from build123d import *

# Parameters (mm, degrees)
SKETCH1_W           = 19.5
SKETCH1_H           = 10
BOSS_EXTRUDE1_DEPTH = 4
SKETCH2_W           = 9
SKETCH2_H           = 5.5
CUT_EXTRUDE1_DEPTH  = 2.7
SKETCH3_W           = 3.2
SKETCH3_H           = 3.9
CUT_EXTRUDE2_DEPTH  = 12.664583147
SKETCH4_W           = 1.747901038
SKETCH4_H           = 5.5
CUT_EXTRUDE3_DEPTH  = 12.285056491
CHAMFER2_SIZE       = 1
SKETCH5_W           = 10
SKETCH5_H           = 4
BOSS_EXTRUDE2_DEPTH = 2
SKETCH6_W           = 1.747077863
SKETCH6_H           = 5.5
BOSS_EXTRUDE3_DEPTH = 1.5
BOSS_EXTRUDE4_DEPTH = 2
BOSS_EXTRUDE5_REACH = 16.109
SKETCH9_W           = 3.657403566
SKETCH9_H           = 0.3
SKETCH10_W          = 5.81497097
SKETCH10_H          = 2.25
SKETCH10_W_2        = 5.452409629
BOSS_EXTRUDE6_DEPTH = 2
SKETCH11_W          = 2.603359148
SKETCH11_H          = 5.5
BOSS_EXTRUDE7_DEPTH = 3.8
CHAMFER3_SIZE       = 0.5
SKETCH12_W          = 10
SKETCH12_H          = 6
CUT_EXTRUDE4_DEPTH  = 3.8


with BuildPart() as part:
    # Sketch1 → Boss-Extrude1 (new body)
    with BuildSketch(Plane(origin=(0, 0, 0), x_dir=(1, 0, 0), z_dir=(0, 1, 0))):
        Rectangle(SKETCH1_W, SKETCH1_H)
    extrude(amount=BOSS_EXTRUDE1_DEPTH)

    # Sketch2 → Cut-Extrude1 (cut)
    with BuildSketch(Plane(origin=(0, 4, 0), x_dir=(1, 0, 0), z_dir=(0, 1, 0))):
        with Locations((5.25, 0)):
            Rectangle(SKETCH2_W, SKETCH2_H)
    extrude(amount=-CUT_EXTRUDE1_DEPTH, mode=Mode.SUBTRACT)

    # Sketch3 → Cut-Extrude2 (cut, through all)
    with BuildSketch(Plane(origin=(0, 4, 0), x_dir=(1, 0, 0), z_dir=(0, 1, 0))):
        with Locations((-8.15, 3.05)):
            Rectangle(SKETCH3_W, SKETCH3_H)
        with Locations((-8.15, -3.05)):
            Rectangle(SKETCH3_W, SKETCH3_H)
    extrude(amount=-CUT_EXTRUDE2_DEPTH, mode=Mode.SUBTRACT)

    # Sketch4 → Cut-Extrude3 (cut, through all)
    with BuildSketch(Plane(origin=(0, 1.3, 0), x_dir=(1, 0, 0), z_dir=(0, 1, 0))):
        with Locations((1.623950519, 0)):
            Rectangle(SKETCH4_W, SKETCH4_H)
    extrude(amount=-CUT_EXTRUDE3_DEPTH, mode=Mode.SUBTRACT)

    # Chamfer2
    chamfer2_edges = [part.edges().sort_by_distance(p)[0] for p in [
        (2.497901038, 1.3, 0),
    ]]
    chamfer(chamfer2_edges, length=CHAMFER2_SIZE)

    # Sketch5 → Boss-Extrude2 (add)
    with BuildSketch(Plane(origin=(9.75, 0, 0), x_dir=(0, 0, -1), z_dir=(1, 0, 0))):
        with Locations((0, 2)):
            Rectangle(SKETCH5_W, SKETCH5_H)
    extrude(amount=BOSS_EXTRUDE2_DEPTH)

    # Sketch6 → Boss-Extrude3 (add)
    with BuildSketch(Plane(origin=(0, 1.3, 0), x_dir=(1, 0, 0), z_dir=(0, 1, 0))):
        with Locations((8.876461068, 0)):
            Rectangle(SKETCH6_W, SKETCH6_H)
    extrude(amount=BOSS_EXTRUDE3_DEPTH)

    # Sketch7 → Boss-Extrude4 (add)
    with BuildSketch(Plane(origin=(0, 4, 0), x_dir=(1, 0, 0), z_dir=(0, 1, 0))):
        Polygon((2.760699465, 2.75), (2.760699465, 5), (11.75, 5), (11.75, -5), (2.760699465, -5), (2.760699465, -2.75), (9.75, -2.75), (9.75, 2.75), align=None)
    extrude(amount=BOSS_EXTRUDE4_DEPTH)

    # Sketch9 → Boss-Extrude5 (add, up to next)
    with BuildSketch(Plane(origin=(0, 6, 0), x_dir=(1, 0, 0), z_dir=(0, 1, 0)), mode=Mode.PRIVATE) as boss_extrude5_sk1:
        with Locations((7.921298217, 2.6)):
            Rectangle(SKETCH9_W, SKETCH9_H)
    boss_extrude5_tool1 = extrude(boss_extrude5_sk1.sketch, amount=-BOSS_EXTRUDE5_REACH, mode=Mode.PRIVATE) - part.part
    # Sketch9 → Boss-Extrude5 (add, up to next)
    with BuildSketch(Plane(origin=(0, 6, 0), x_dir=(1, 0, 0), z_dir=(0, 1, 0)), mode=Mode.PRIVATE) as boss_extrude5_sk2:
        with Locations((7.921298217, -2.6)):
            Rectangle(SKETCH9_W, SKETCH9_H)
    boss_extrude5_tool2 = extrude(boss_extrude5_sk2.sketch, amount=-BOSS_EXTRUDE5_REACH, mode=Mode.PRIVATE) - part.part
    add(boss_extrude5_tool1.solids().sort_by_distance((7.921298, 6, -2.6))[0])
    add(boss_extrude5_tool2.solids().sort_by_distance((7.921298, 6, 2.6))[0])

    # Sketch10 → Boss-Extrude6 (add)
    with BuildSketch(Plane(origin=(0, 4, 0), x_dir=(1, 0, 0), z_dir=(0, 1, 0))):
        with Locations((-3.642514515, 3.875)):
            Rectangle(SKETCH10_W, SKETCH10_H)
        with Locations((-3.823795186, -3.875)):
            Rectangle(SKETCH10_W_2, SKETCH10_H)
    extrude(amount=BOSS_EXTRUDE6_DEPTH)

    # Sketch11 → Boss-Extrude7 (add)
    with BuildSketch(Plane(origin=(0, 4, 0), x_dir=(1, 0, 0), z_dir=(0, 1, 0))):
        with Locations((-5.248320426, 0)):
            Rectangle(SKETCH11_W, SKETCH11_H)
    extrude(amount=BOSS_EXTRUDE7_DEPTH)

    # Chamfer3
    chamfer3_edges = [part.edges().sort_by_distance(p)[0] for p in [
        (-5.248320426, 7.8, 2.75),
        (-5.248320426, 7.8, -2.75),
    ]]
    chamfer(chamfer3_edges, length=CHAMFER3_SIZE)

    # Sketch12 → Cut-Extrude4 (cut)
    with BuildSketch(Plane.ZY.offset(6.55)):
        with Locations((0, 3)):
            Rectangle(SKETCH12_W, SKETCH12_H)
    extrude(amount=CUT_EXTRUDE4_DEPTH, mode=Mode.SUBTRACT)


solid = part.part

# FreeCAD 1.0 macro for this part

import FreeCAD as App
import Part
import Sketcher
from FreeCAD import Vector


def edges_at(feature, points):
    """Names of the edges that pass closest to the given points."""
    edges = feature.Shape.Edges
    near = lambda p: min(range(len(edges)), key=lambda i: edges[i].distToShape(Part.Vertex(*p))[0])
    return sorted({f"Edge{near(p) + 1}" for p in points})


def add_polygon(sketch, points):
    """Adds a closed chain of lines whose ends are joined by coincident constraints."""
    first, n = sketch.GeometryCount, len(points)
    for a, b in zip(points, points[1:] + points[:1]):
        sketch.addGeometry(Part.LineSegment(App.Vector(*a, 0), App.Vector(*b, 0)), False)
    for i in range(n):
        sketch.addConstraint(Sketcher.Constraint("Coincident", first + i, 2, first + (i + 1) % n, 1))

doc = App.newDocument("Part")
body = doc.addObject("PartDesign::Body", "Body")

sketch1 = body.newObject("Sketcher::SketchObject", "Sketch")
sketch1.AttachmentSupport = (doc.getObject("XZ_Plane"), [""])
sketch1.MapMode = "FlatFace"
add_polygon(sketch1, [(-10, -5), (-10, 5), (10, 5), (10, -5)])
sketch1.addConstraint([
    Sketcher.Constraint("Vertical", 0),
    Sketcher.Constraint("Horizontal", 1),
    Sketcher.Constraint("Vertical", 2),
    Sketcher.Constraint("Horizontal", 3),
    Sketcher.Constraint("Symmetric", 0, 2, 2, 2, -1, 1),
    Sketcher.Constraint("DistanceY", 0, 1, 0, 2, 10.0),
    Sketcher.Constraint("DistanceX", 1, 1, 1, 2, 19.5),
])
pad1 = body.newObject("PartDesign::Pad", "Pad")
pad1.Profile = sketch1
pad1.Length = 4
pad1.Reversed = True

sketch2 = body.newObject("Sketcher::SketchObject", "Sketch001")
sketch2.AttachmentSupport = (doc.getObject("XZ_Plane"), [""])
sketch2.MapMode = "FlatFace"
sketch2.AttachmentOffset = App.Placement(Vector(0, 0, -4), App.Rotation())
add_polygon(sketch2, [(1, -3), (1, 3), (10, 3), (10, -3)])
sketch2.addConstraint([
    Sketcher.Constraint("Vertical", 0),
    Sketcher.Constraint("Horizontal", 1),
    Sketcher.Constraint("Vertical", 2),
    Sketcher.Constraint("Horizontal", 3),
    Sketcher.Constraint("DistanceX", 1, 1, 1, 2, 9.0),
    Sketcher.Constraint("DistanceY", 0, 1, 0, 2, 5.5),
    Sketcher.Constraint("DistanceX", -1, 1, 0, 2, 0.75),
    Sketcher.Constraint("DistanceY", -1, 1, 0, 2, 2.75),
])
pocket1 = body.newObject("PartDesign::Pocket", "Pocket")
pocket1.Profile = sketch2
pocket1.Length = 2.7
pocket1.Reversed = True

sketch3 = body.newObject("Sketcher::SketchObject", "Sketch002")
sketch3.AttachmentSupport = (doc.getObject("XZ_Plane"), [""])
sketch3.MapMode = "FlatFace"
sketch3.AttachmentOffset = App.Placement(Vector(0, 0, -4), App.Rotation())
add_polygon(sketch3, [(-9.8, -5), (-9.8, -1.1), (-6.5, -1.1), (-6.5, -5)])
add_polygon(sketch3, [(-9.8, 1.1), (-9.8, 5), (-6.5, 5), (-6.5, 1.1)])
sketch3.addConstraint([
    Sketcher.Constraint("Vertical", 0),
    Sketcher.Constraint("Horizontal", 1),
    Sketcher.Constraint("Vertical", 2),
    Sketcher.Constraint("Horizontal", 3),
    Sketcher.Constraint("Vertical", 4),
    Sketcher.Constraint("Horizontal", 5),
    Sketcher.Constraint("Vertical", 6),
    Sketcher.Constraint("Horizontal", 7),
    Sketcher.Constraint("Symmetric", 3, 2, 4, 2, -1),
    Sketcher.Constraint("Symmetric", 1, 2, 6, 2, -1),
    Sketcher.Constraint("DistanceX", 1, 1, 1, 2, 3.2),
    Sketcher.Constraint("DistanceY", 0, 1, 0, 2, 3.9),
    Sketcher.Constraint("DistanceY", 2, 2, -1, 1, 5.0),
    Sketcher.Constraint("DistanceX", 0, 2, -1, 1, 9.75),
])
pocket2 = body.newObject("PartDesign::Pocket", "Pocket001")
pocket2.Profile = sketch3
pocket2.Type = "ThroughAll"
pocket2.Reversed = True

sketch4 = body.newObject("Sketcher::SketchObject", "Sketch003")
sketch4.AttachmentSupport = (doc.getObject("XZ_Plane"), [""])
sketch4.MapMode = "FlatFace"
sketch4.AttachmentOffset = App.Placement(Vector(0, 0, -1.3), App.Rotation())
add_polygon(sketch4, [(0.8, -2.8), (0.8, 2.8), (2.5, 2.8), (2.5, -2.8)])
sketch4.addConstraint([
    Sketcher.Constraint("Vertical", 0),
    Sketcher.Constraint("Horizontal", 1),
    Sketcher.Constraint("Vertical", 2),
    Sketcher.Constraint("Horizontal", 3),
    Sketcher.Constraint("DistanceY", 0, 1, 0, 2, 5.5),
    Sketcher.Constraint("DistanceX", -1, 1, 0, 2, 0.75),
    Sketcher.Constraint("DistanceY", -1, 1, 0, 2, 2.75),
    Sketcher.Constraint("DistanceX", 1, 1, 1, 2, 1.747901),
])
pocket3 = body.newObject("PartDesign::Pocket", "Pocket002")
pocket3.Profile = sketch4
pocket3.Type = "ThroughAll"
pocket3.Reversed = True
doc.recompute()

chamfer = body.newObject("PartDesign::Chamfer", "Chamfer")
chamfer.Base = (pocket3, edges_at(pocket3, [(2.498, 1.3, 0)]))
chamfer.Size = 1

sketch5 = body.newObject("Sketcher::SketchObject", "Sketch004")
sketch5.AttachmentSupport = (doc.getObject("YZ_Plane"), [""])
sketch5.MapMode = "FlatFace"
sketch5.AttachmentOffset = App.Placement(Vector(0, 0, 9.75), App.Rotation())
add_polygon(sketch5, [(4, 5), (0, 5), (0, -5), (4, -5)])
sketch5.addConstraint([
    Sketcher.Constraint("Horizontal", 0),
    Sketcher.Constraint("Vertical", 1),
    Sketcher.Constraint("Horizontal", 2),
    Sketcher.Constraint("Vertical", 3),
    Sketcher.Constraint("Symmetric", 0, 2, 1, 2, -1, 1),
    Sketcher.Constraint("DistanceX", 0, 2, 0, 1, 4.0),
    Sketcher.Constraint("DistanceY", 1, 2, 1, 1, 10.0),
])
pad2 = body.newObject("PartDesign::Pad", "Pad001")
pad2.Profile = sketch5
pad2.Length = 2

sketch6 = body.newObject("Sketcher::SketchObject", "Sketch005")
sketch6.AttachmentSupport = (doc.getObject("XZ_Plane"), [""])
sketch6.MapMode = "FlatFace"
sketch6.AttachmentOffset = App.Placement(Vector(0, 0, -1.3), App.Rotation())
add_polygon(sketch6, [(8, -2.8), (8, 2.8), (9.7, 2.8), (9.7, -2.8)])
sketch6.addConstraint([
    Sketcher.Constraint("Vertical", 0),
    Sketcher.Constraint("Horizontal", 1),
    Sketcher.Constraint("Vertical", 2),
    Sketcher.Constraint("Horizontal", 3),
    Sketcher.Constraint("DistanceY", 0, 1, 0, 2, 5.5),
    Sketcher.Constraint("DistanceY", -1, 1, 0, 2, 2.75),
    Sketcher.Constraint("DistanceX", -1, 1, 1, 2, 9.75),
    Sketcher.Constraint("DistanceX", 1, 1, 1, 2, 1.747078),
])
pad3 = body.newObject("PartDesign::Pad", "Pad002")
pad3.Profile = sketch6
pad3.Length = 1.5
pad3.Reversed = True

sketch7 = body.newObject("Sketcher::SketchObject", "Sketch006")
sketch7.AttachmentSupport = (doc.getObject("XZ_Plane"), [""])
sketch7.MapMode = "FlatFace"
sketch7.AttachmentOffset = App.Placement(Vector(0, 0, -4), App.Rotation())
add_polygon(sketch7, [(2.8, -5), (2.8, -2.8), (9.8, -2.8), (9.8, 2.8), (2.8, 2.8), (2.8, 5), (11.8, 5), (11.8, -5)])
sketch7.addConstraint([
    Sketcher.Constraint("Vertical", 0),
    Sketcher.Constraint("Horizontal", 1),
    Sketcher.Constraint("Vertical", 2),
    Sketcher.Constraint("Horizontal", 3),
    Sketcher.Constraint("Vertical", 4),
    Sketcher.Constraint("Horizontal", 5),
    Sketcher.Constraint("Vertical", 6),
    Sketcher.Constraint("Horizontal", 7),
    Sketcher.Constraint("Symmetric", 0, 2, 3, 2, -1),
    Sketcher.Constraint("Equal", 0, 4),
    Sketcher.Constraint("DistanceY", 6, 2, 6, 1, 10.0),
    Sketcher.Constraint("DistanceY", 2, 1, 2, 2, 5.5),
    Sketcher.Constraint("DistanceX", 2, 2, 5, 2, 2.0),
    Sketcher.Constraint("DistanceX", -1, 1, 1, 2, 9.75),
    Sketcher.Constraint("DistanceX", 1, 1, 1, 2, 6.989301),
])
pad4 = body.newObject("PartDesign::Pad", "Pad003")
pad4.Profile = sketch7
pad4.Length = 2
pad4.Reversed = True

sketch8 = body.newObject("Sketcher::SketchObject", "Sketch007")
sketch8.AttachmentSupport = (doc.getObject("XZ_Plane"), [""])
sketch8.MapMode = "FlatFace"
sketch8.AttachmentOffset = App.Placement(Vector(0, 0, -6), App.Rotation())
add_polygon(sketch8, [(6.09, -2.75), (6.09, -2.45), (9.75, -2.45), (9.75, -2.75)])
sketch8.addConstraint([
    Sketcher.Constraint("Vertical", 0),
    Sketcher.Constraint("Horizontal", 1),
    Sketcher.Constraint("Vertical", 2),
    Sketcher.Constraint("Horizontal", 3),
    Sketcher.Constraint("DistanceY", 0, 1, 0, 2, 0.3),
    Sketcher.Constraint("DistanceY", 0, 2, -1, 1, 2.45),
    Sketcher.Constraint("DistanceX", -1, 1, 1, 2, 9.75),
    Sketcher.Constraint("DistanceX", 1, 1, 1, 2, 3.657404),
])
pad5 = body.newObject("PartDesign::Pad", "Pad004")
pad5.Profile = sketch8
pad5.Type = "UpToFirst"

sketch9 = body.newObject("Sketcher::SketchObject", "Sketch008")
sketch9.AttachmentSupport = (doc.getObject("XZ_Plane"), [""])
sketch9.MapMode = "FlatFace"
sketch9.AttachmentOffset = App.Placement(Vector(0, 0, -6), App.Rotation())
add_polygon(sketch9, [(6.09, 2.45), (6.09, 2.75), (9.75, 2.75), (9.75, 2.45)])
sketch9.addConstraint([
    Sketcher.Constraint("Vertical", 0),
    Sketcher.Constraint("Horizontal", 1),
    Sketcher.Constraint("Vertical", 2),
    Sketcher.Constraint("Horizontal", 3),
    Sketcher.Constraint("DistanceY", 0, 1, 0, 2, 0.3),
    Sketcher.Constraint("DistanceY", -1, 1, 0, 2, 2.75),
    Sketcher.Constraint("DistanceX", -1, 1, 1, 2, 9.75),
    Sketcher.Constraint("DistanceX", 1, 1, 1, 2, 3.657404),
])
pad6 = body.newObject("PartDesign::Pad", "Pad005")
pad6.Profile = sketch9
pad6.Type = "UpToFirst"

sketch10 = body.newObject("Sketcher::SketchObject", "Sketch009")
sketch10.AttachmentSupport = (doc.getObject("XZ_Plane"), [""])
sketch10.MapMode = "FlatFace"
sketch10.AttachmentOffset = App.Placement(Vector(0, 0, -4), App.Rotation())
add_polygon(sketch10, [(-6.5, -5), (-6.5, -2.8), (-0.7, -2.8), (-0.7, -5)])
add_polygon(sketch10, [(-6.5, 2.8), (-6.5, 5), (-1.1, 5), (-1.1, 2.8)])
sketch10.addConstraint([
    Sketcher.Constraint("Vertical", 0),
    Sketcher.Constraint("Horizontal", 1),
    Sketcher.Constraint("Vertical", 2),
    Sketcher.Constraint("Horizontal", 3),
    Sketcher.Constraint("Vertical", 4),
    Sketcher.Constraint("Horizontal", 5),
    Sketcher.Constraint("Vertical", 6),
    Sketcher.Constraint("Horizontal", 7),
    Sketcher.Constraint("Symmetric", 3, 2, 4, 2, -1),
    Sketcher.Constraint("Equal", 2, 4),
    Sketcher.Constraint("DistanceY", 2, 2, -1, 1, 5.0),
    Sketcher.Constraint("DistanceY", 0, 1, 0, 2, 2.25),
    Sketcher.Constraint("DistanceX", 0, 2, -1, 1, 6.55),
    Sketcher.Constraint("DistanceX", 1, 1, 1, 2, 5.814971),
    Sketcher.Constraint("DistanceX", 5, 1, 5, 2, 5.45241),
])
pad7 = body.newObject("PartDesign::Pad", "Pad006")
pad7.Profile = sketch10
pad7.Length = 2
pad7.Reversed = True

sketch11 = body.newObject("Sketcher::SketchObject", "Sketch010")
sketch11.AttachmentSupport = (doc.getObject("XZ_Plane"), [""])
sketch11.MapMode = "FlatFace"
sketch11.AttachmentOffset = App.Placement(Vector(0, 0, -4), App.Rotation())
add_polygon(sketch11, [(-6.5, -2.8), (-6.5, 2.8), (-3.9, 2.8), (-3.9, -2.8)])
sketch11.addConstraint([
    Sketcher.Constraint("Vertical", 0),
    Sketcher.Constraint("Horizontal", 1),
    Sketcher.Constraint("Vertical", 2),
    Sketcher.Constraint("Horizontal", 3),
    Sketcher.Constraint("DistanceY", 0, 1, 0, 2, 5.5),
    Sketcher.Constraint("DistanceX", 0, 2, -1, 1, 6.55),
    Sketcher.Constraint("DistanceY", -1, 1, 0, 2, 2.75),
    Sketcher.Constraint("DistanceX", 1, 1, 1, 2, 2.603359),
])
pad8 = body.newObject("PartDesign::Pad", "Pad007")
pad8.Profile = sketch11
pad8.Length = 3.8
pad8.Reversed = True
doc.recompute()

chamfer2 = body.newObject("PartDesign::Chamfer", "Chamfer001")
chamfer2.Base = (pad8, edges_at(pad8, [(-5.248, 7.8, 2.75), (-5.248, 7.8, -2.75)]))
chamfer2.Size = 0.5

sketch12 = body.newObject("Sketcher::SketchObject", "Sketch011")
sketch12.AttachmentSupport = (doc.getObject("YZ_Plane"), [""])
sketch12.MapMode = "FlatFace"
sketch12.AttachmentOffset = App.Placement(Vector(0, 0, -6.55), App.Rotation())
add_polygon(sketch12, [(6, -5), (0, -5), (0, 5), (6, 5)])
sketch12.addConstraint([
    Sketcher.Constraint("Horizontal", 0),
    Sketcher.Constraint("Vertical", 1),
    Sketcher.Constraint("Horizontal", 2),
    Sketcher.Constraint("Vertical", 3),
    Sketcher.Constraint("Symmetric", 0, 2, 1, 2, -1, 1),
    Sketcher.Constraint("DistanceX", 0, 2, 0, 1, 6.0),
    Sketcher.Constraint("DistanceY", 1, 1, 1, 2, 10.0),
])
pocket4 = body.newObject("PartDesign::Pocket", "Pocket003")
pocket4.Profile = sketch12
pocket4.Length = 3.8

doc.recompute()
